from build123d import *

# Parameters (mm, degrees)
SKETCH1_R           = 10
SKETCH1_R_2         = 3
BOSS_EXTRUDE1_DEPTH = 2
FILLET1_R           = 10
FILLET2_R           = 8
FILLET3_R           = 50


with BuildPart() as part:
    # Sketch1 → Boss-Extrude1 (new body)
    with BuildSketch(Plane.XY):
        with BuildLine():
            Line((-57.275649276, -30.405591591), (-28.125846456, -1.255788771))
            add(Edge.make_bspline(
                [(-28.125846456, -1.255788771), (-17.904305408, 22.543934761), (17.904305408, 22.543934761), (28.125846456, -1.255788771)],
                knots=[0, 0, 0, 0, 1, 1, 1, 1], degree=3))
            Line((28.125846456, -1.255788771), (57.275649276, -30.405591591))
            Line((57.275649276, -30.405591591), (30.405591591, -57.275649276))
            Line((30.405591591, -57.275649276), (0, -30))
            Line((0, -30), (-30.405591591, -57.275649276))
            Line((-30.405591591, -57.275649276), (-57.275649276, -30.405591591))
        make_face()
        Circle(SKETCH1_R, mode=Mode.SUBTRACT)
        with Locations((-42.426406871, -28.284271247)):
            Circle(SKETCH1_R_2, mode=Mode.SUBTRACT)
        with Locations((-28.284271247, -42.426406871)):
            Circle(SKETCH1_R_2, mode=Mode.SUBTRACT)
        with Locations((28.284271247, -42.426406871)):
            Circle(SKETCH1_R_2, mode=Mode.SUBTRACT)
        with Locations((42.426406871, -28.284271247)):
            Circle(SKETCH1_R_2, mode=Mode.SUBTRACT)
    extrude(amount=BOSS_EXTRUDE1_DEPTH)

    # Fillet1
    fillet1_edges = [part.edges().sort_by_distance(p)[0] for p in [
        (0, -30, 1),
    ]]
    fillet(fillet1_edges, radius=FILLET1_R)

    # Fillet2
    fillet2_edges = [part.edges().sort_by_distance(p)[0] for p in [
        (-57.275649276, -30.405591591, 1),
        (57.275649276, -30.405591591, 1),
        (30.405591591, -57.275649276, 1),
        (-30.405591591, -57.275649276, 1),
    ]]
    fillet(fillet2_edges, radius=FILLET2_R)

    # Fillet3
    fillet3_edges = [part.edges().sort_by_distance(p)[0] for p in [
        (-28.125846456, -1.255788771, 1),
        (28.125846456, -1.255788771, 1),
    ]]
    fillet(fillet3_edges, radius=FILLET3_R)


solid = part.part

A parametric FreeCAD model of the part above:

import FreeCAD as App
import Part
import Sketcher

V = App.Vector
Q = App.Units.Quantity


def edges_at(feature, points):
    """Names of the edges that pass closest to the given points."""
    edges = feature.Shape.Edges
    near = lambda p: min(range(len(edges)), key=lambda i: edges[i].distToShape(Part.Vertex(*p))[0])
    return sorted({f"Edge{near(p) + 1}" for p in points})

doc = App.newDocument("Part")
body = doc.addObject("PartDesign::Body", "Body")

sketch1 = body.newObject("Sketcher::SketchObject", "Sketch")
sketch1.AttachmentSupport = (doc.getObject("XY_Plane"), [""])
sketch1.MapMode = "FlatFace"
sketch1.addGeometry([
    Part.LineSegment(V(-28.125846, -1.255789, 0), V(-57.275649, -30.405592, 0)),
    Part.LineSegment(V(-57.275649, -30.405592, 0), V(-30.405592, -57.275649, 0)),
    Part.LineSegment(V(-30.405592, -57.275649, 0), V(0, -30, 0)),
    Part.LineSegment(V(0, -30, 0), V(30.405592, -57.275649, 0)),
    Part.LineSegment(V(30.405592, -57.275649, 0), V(57.275649, -30.405592, 0)),
    Part.LineSegment(V(57.275649, -30.405592, 0), V(28.125846, -1.255789, 0)),
    Part.BSplineCurve([V(-28.125846, -1.255789, 0), V(-17.904305, 22.543935, 0), V(17.904305, 22.543935, 0), V(28.125846, -1.255789, 0)], [4, 4], [0, 1], False, 3, [1, 1, 1, 1], False),
    Part.Circle(V(28.284271, -42.426407, 0), V(0, 0, 1), 3),
    Part.Circle(V(42.426407, -28.284271, 0), V(0, 0, 1), 3),
    Part.Circle(V(-28.284271, -42.426407, 0), V(0, 0, 1), 3),
    Part.Circle(V(-42.426407, -28.284271, 0), V(0, 0, 1), 3),
    Part.Circle(V(0, 0, 0), V(0, 0, 1), 10),
], False)
sketch1.addConstraint([
    Sketcher.Constraint("Block", 6),
    Sketcher.Constraint("Coincident", 0, 2, 1, 1),
    Sketcher.Constraint("Coincident", 1, 2, 2, 1),
    Sketcher.Constraint("Coincident", 2, 2, 3, 1),
    Sketcher.Constraint("Coincident", 3, 2, 4, 1),
    Sketcher.Constraint("Coincident", 4, 2, 5, 1),
    Sketcher.Constraint("Coincident", 5, 2, 6, 2),
    Sketcher.Constraint("Coincident", 6, 1, 0, 1),
    Sketcher.Constraint("Coincident", 11, 3, -1, 1),
    Sketcher.Constraint("Equal", 7, 8),
    Sketcher.Constraint("Equal", 8, 9),
    Sketcher.Constraint("Equal", 9, 10),
    Sketcher.Constraint("Symmetric", 7, 3, 9, 3, -2),
    Sketcher.Constraint("Symmetric", 8, 3, 10, 3, -2),
    Sketcher.Constraint("Symmetric", 1, 2, 3, 2, -2),
    Sketcher.Constraint("Symmetric", 0, 2, 4, 2, -2),
    Sketcher.Constraint("PointOnObject", 2, 2, -2),
    Sketcher.Constraint("Perpendicular", 0, 1),
    Sketcher.Constraint("Perpendicular", 1, 4),
    Sketcher.Constraint("Diameter", 7, Q("6 mm")),
    Sketcher.Constraint("Diameter", 11, Q("20 mm")),
    Sketcher.Constraint("Distance", 1, Q("38 mm")),
    Sketcher.Constraint("DistanceY", 2, 2, -1, 1, Q("30 mm")),
    Sketcher.Constraint("Distance", 2, Q("40.8468 mm")),
    Sketcher.Constraint("DistanceX", -1, 1, 7, 3, Q("28.284271 mm")),
    Sketcher.Constraint("DistanceY", 8, 3, -1, 1, Q("28.284271 mm")),
    Sketcher.Constraint("DistanceX", 9, 3, 8, 3, Q("70.710678 mm")),
    Sketcher.Constraint("DistanceY", 7, 3, 5, 2, Q("41.170618 mm")),
])
pad1 = body.newObject("PartDesign::Pad", "Pad")
pad1.Profile = sketch1
pad1.Length = 2
doc.recompute()

fillet = body.newObject("PartDesign::Fillet", "Fillet")
fillet.Base = (pad1, edges_at(pad1, [(0, -30, 1)]))
fillet.Radius = 10
doc.recompute()

fillet2 = body.newObject("PartDesign::Fillet", "Fillet001")
fillet2.Base = (fillet, edges_at(fillet, [
    (-57.276, -30.406, 1),
    (57.276, -30.406, 1),
    (30.406, -57.276, 1),
    (-30.406, -57.276, 1),
]))
fillet2.Radius = 8
doc.recompute()

fillet3 = body.newObject("PartDesign::Fillet", "Fillet002")
fillet3.Base = (fillet2, edges_at(fillet2, [(-28.126, -1.256, 1), (28.126, -1.256, 1)]))
fillet3.Radius = 50

doc.recompute()
